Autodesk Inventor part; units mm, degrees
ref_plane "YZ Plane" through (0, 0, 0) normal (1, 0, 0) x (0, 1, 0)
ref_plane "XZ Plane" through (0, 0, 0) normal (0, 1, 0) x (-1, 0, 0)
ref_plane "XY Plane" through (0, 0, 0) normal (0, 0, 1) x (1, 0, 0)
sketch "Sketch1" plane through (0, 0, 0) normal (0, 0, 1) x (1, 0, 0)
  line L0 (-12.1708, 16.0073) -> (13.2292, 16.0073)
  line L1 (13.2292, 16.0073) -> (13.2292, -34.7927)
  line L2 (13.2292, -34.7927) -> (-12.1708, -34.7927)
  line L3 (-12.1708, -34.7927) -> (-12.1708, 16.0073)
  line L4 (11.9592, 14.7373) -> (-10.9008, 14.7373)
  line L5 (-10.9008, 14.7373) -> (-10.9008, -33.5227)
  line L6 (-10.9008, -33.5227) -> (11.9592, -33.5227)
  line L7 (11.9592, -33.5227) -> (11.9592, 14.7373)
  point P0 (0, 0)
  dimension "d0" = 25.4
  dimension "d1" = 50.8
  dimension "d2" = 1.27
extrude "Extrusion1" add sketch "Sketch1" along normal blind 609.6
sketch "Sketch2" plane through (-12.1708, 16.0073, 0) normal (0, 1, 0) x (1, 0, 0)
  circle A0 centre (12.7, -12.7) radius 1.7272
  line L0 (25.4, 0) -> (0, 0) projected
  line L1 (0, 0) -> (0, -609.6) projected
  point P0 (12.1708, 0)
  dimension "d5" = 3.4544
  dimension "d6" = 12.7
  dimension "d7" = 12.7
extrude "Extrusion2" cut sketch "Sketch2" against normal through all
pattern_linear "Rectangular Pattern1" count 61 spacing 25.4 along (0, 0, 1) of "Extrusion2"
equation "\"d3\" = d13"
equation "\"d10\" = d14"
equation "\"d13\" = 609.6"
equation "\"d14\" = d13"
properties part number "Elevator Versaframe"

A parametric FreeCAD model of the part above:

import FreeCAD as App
import Part
import Sketcher

V = App.Vector
Q = App.Units.Quantity


def add_polygon(sketch, points):
    """Adds a closed chain of lines whose ends are joined by coincident constraints."""
    first, n = sketch.GeometryCount, len(points)
    for a, b in zip(points, points[1:] + points[:1]):
        sketch.addGeometry(Part.LineSegment(App.Vector(*a, 0), App.Vector(*b, 0)), False)
    for i in range(n):
        sketch.addConstraint(Sketcher.Constraint("Coincident", first + i, 2, first + (i + 1) % n, 1))

doc = App.newDocument("Part")
body = doc.addObject("PartDesign::Body", "Body")

# Sketch on XY plane
sketch1 = body.newObject("Sketcher::SketchObject", "Sketch")
sketch1.AttachmentSupport = (doc.getObject("XY_Plane"), [""])
sketch1.MapMode = "FlatFace"
add_polygon(sketch1, [(13.2292, 16.0073), (-12.1708, 16.0073), (-12.1708, -34.7927), (13.2292, -34.7927)])  # lines 0-3
add_polygon(sketch1, [(-10.9008, 14.7373), (11.9592, 14.7373), (11.9592, -33.5227), (-10.9008, -33.5227)])  # lines 4-7
sketch1.addConstraint(Sketcher.Constraint("Horizontal", 0))
sketch1.addConstraint(Sketcher.Constraint("Vertical", 1))
sketch1.addConstraint(Sketcher.Constraint("Horizontal", 2))
sketch1.addConstraint(Sketcher.Constraint("Vertical", 3))
sketch1.addConstraint(Sketcher.Constraint("Horizontal", 4))
sketch1.addConstraint(Sketcher.Constraint("Vertical", 5))
sketch1.addConstraint(Sketcher.Constraint("Horizontal", 6))
sketch1.addConstraint(Sketcher.Constraint("Vertical", 7))
sketch1.addConstraint(Sketcher.Constraint("DistanceX", 0, 2, 0, 1, Q("1 in")))
sketch1.addConstraint(Sketcher.Constraint("DistanceY", 1, 2, 1, 1, Q("2 in")))
sketch1.addConstraint(Sketcher.Constraint("DistanceX", 4, 2, 3, 2, Q("0.05 in")))
sketch1.addConstraint(Sketcher.Constraint("DistanceY", 4, 2, 3, 2, Q("0.05 in")))
sketch1.addConstraint(Sketcher.Constraint("DistanceY", 2, 2, 5, 2, Q("0.05 in")))
sketch1.addConstraint(Sketcher.Constraint("DistanceX", 1, 2, 6, 2, Q("0.05 in")))
sketch1.addConstraint(Sketcher.Constraint("DistanceY", -1, 1, 0, 2, Q("0.6302 in")))
sketch1.addConstraint(Sketcher.Constraint("DistanceX", 0, 2, -1, 1, Q("12.1708 mm")))
pad1 = body.newObject("PartDesign::Pad", "Pad")
pad1.Profile = sketch1
pad1.Length = Q("24 in")

# Sketch on XZ plane
sketch2 = body.newObject("Sketcher::SketchObject", "Sketch001")
sketch2.AttachmentSupport = (doc.getObject("XZ_Plane"), [""])
sketch2.MapMode = "FlatFace"
sketch2.AttachmentOffset = App.Placement(V(0, 0, -0.6302087 * 25.4), App.Rotation())
sketch2.addGeometry(Part.Circle(V(0.5292, 12.7, 0), V(0, 0, 1), 1.7272), False)
sketch2.addConstraint(Sketcher.Constraint("Diameter", 0, Q("0.136 in")))
sketch2.addConstraint(Sketcher.Constraint("DistanceY", -1, 1, 0, 3, Q("0.5 in")))
sketch2.addConstraint(Sketcher.Constraint("DistanceX", -1, 1, 0, 3, Q("0.5292 mm")))
pocket1 = body.newObject("PartDesign::Pocket", "Pocket")
pocket1.Profile = sketch2
pocket1.Type = "ThroughAll"
pocket1.Reversed = True
doc.recompute()

linearpattern = body.newObject("PartDesign::LinearPattern", "LinearPattern")
linearpattern.Originals = [pocket1]
linearpattern.Direction = (doc.getObject("Z_Axis"), [""])
linearpattern.Mode = "offset"
linearpattern.Offset = Q("1 in")
linearpattern.Occurrences = 61
body.Tip = linearpattern

doc.recompute()
